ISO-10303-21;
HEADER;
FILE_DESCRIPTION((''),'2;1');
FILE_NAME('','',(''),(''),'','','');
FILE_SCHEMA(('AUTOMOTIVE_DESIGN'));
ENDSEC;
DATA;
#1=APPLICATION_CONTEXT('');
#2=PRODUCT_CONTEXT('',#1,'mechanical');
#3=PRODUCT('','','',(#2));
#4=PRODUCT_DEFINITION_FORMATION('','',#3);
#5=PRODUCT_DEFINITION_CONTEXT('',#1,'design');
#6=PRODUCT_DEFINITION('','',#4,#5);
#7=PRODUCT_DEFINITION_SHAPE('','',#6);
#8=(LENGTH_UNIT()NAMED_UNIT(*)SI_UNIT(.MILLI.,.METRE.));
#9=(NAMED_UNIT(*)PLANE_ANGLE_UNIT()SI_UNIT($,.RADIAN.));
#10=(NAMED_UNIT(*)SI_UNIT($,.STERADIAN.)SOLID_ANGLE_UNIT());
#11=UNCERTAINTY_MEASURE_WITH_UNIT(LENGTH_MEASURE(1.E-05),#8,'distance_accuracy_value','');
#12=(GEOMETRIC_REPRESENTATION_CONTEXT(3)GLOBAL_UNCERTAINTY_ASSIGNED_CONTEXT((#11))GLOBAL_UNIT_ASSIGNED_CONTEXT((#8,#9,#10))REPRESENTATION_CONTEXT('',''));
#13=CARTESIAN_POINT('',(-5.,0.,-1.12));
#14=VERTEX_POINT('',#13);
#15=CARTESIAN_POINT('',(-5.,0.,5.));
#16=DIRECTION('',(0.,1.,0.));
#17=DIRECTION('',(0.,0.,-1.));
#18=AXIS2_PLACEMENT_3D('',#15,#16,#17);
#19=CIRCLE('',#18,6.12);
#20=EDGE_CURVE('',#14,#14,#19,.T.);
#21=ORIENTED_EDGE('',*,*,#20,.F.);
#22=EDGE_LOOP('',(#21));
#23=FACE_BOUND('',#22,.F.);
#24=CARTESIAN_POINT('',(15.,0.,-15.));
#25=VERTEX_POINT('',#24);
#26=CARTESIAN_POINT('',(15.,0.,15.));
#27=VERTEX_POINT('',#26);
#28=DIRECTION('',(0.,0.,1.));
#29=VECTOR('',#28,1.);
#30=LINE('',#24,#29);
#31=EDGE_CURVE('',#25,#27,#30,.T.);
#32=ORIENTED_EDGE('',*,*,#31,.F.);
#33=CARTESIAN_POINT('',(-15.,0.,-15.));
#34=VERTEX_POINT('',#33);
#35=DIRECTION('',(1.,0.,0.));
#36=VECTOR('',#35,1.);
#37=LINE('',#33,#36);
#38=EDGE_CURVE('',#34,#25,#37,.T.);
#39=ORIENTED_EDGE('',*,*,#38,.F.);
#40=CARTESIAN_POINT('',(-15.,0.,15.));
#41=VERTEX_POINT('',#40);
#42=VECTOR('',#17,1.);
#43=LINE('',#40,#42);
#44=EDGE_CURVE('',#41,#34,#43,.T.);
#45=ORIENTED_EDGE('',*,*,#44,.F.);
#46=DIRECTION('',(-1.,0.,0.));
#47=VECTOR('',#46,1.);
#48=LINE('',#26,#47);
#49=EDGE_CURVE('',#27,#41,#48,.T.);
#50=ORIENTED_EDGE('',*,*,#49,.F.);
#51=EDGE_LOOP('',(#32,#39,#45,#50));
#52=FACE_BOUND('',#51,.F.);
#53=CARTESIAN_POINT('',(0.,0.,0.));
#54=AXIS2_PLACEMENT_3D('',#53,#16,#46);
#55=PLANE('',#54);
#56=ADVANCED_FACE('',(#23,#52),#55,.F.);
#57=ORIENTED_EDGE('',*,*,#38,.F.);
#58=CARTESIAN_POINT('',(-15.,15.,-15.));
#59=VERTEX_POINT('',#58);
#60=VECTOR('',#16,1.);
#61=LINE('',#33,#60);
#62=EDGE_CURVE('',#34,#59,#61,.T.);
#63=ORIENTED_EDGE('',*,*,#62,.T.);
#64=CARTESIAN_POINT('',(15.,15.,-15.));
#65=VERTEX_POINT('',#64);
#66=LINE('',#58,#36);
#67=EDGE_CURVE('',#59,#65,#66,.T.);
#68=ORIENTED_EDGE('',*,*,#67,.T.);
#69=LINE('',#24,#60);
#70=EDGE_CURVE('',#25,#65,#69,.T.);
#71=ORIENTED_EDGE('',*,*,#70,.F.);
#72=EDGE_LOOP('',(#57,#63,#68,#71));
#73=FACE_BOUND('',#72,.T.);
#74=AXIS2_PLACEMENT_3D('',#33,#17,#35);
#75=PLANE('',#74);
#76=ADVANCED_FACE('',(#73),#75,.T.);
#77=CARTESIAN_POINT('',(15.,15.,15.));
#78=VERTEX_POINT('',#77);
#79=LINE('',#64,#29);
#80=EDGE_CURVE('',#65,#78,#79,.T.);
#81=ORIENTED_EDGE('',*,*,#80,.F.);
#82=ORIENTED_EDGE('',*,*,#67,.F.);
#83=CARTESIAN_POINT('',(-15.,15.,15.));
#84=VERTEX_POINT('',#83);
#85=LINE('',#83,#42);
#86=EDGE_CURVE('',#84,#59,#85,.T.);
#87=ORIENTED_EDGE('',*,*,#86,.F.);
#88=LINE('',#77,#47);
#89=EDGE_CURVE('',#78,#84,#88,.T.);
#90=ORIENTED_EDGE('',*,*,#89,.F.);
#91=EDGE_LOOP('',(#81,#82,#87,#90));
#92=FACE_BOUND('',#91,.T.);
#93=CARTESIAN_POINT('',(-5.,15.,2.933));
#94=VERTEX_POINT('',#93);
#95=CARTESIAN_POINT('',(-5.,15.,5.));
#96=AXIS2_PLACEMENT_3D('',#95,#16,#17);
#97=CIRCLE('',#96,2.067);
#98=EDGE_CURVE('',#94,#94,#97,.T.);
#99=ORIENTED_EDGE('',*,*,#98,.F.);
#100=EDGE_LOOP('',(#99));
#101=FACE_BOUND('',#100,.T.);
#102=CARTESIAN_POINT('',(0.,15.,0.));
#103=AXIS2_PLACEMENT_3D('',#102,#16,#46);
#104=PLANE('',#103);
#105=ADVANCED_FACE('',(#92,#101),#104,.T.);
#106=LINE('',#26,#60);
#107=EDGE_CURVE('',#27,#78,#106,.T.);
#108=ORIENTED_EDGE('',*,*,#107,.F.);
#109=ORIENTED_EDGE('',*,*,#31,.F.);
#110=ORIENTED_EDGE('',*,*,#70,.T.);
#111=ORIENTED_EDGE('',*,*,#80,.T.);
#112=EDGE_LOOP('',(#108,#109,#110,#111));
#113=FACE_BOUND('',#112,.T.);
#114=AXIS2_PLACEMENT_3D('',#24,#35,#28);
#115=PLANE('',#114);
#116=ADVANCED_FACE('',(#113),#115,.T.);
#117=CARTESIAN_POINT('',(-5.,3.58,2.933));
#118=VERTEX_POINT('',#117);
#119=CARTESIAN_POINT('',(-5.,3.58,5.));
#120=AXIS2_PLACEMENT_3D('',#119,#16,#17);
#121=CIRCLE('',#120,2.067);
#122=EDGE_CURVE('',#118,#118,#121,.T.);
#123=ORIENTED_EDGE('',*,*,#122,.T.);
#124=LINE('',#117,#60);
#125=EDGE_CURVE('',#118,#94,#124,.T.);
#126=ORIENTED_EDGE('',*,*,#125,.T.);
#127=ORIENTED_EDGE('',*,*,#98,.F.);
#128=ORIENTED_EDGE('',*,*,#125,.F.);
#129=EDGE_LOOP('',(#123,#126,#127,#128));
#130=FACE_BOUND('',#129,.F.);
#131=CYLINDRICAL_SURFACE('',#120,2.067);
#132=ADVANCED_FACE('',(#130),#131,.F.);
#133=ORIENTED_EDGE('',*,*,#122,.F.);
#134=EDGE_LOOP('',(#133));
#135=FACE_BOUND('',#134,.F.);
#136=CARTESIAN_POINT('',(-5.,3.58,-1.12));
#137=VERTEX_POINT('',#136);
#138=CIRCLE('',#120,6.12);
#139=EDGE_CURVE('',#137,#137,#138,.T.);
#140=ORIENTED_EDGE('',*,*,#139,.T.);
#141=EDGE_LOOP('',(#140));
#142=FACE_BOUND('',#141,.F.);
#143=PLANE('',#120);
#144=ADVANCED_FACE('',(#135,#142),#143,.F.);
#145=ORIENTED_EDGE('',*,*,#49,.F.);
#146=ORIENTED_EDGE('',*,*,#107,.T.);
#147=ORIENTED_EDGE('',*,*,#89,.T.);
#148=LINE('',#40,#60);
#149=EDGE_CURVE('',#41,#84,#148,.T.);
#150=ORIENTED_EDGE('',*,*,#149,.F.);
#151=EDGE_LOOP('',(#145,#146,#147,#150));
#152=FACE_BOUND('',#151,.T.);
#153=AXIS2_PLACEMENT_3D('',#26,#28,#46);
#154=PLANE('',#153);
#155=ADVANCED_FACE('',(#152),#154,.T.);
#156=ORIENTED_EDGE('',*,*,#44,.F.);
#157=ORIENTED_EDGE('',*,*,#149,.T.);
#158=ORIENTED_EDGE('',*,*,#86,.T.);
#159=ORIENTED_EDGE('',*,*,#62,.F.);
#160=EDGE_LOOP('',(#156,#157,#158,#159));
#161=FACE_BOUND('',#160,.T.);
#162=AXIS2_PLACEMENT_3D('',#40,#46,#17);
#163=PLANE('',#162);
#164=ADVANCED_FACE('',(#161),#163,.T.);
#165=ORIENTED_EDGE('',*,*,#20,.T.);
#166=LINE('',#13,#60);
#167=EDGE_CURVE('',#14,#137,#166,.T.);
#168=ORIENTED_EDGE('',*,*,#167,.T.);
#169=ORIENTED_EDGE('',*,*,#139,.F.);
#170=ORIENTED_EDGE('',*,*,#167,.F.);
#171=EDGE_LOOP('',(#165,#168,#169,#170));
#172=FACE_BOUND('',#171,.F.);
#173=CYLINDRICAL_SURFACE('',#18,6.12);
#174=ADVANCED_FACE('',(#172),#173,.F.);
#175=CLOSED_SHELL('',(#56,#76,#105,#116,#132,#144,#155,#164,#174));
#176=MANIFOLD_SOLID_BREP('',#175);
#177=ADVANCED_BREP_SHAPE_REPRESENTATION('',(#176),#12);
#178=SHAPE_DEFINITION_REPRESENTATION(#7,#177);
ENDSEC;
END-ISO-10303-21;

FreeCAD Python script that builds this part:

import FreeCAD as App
import Part
import Sketcher
Q = App.Units.Quantity

doc = App.newDocument("Part")
params = doc.addObject("Spreadsheet::Sheet", "Params")
for row, (alias, value) in enumerate([
    ("sketch1_width", "30 mm"),
    ("pad1_length", "15 mm"),
    ("hole_diameter", "4.134 mm"),
    ("hole_cbore_diameter", "12.24 mm"),
    ("hole_cbore_depth", "3.58 mm"),
], start=1):
    params.set(f"A{row}", alias)
    params.set(f"B{row}", "=" + value)
    params.setAlias(f"B{row}", alias)

body = doc.addObject("PartDesign::Body", "Body")

# Sketch on XZ plane
sketch1 = doc.addObject("Sketcher::SketchObject", "Sketch")
body.addObject(sketch1)
sketch1.AttachmentSupport = (doc.XZ_Plane, [""])
sketch1.MapMode = "FlatFace"
sketch1.addGeometry(Part.LineSegment(App.Vector(15, -15, 0), App.Vector(-15, -15, 0)), False)
sketch1.addGeometry(Part.LineSegment(App.Vector(-15, -15, 0), App.Vector(-15, 15, 0)), False)
sketch1.addGeometry(Part.LineSegment(App.Vector(-15, 15, 0), App.Vector(15, 15, 0)), False)
sketch1.addGeometry(Part.LineSegment(App.Vector(15, 15, 0), App.Vector(15, -15, 0)), False)
sketch1.addConstraint(Sketcher.Constraint("Coincident", 0, 2, 1, 1))
sketch1.addConstraint(Sketcher.Constraint("Coincident", 1, 2, 2, 1))
sketch1.addConstraint(Sketcher.Constraint("Coincident", 2, 2, 3, 1))
sketch1.addConstraint(Sketcher.Constraint("Coincident", 3, 2, 0, 1))
sketch1.addConstraint(Sketcher.Constraint("Horizontal", 0))
sketch1.addConstraint(Sketcher.Constraint("Vertical", 1))
sketch1.addConstraint(Sketcher.Constraint("Horizontal", 2))
sketch1.addConstraint(Sketcher.Constraint("Vertical", 3))
sketch1.addConstraint(Sketcher.Constraint("Symmetric", 0, 2, 2, 2, -1, 1))
sketch1.addConstraint(Sketcher.Constraint("Equal", 2, 1))
sketch1.addConstraint(Sketcher.Constraint("DistanceX", 0, 2, 0, 1, Q("30 mm")))
sketch1.setExpression("Constraints[10]", "Params.sketch1_width")
pad1 = doc.addObject("PartDesign::Pad", "Pad")
body.addObject(pad1)
pad1.Profile = sketch1
pad1.setExpression("Length", "Params.pad1_length")
pad1.Reversed = True

# Sketch on XZ plane
sketch2 = doc.addObject("Sketcher::SketchObject", "Sketch001")
body.addObject(sketch2)
sketch2.AttachmentSupport = (doc.XZ_Plane, [""])
sketch2.MapMode = "FlatFace"
sketch2.addGeometry(Part.Circle(App.Vector(-5, 5, 0), App.Vector(0, 0, 1), 2.1), False)
sketch2.addConstraint(Sketcher.Constraint("Diameter", 0, Q("4.134 mm")))
sketch2.addConstraint(Sketcher.Constraint("DistanceX", 0, 3, -1, 1, Q("5 mm")))
sketch2.addConstraint(Sketcher.Constraint("DistanceY", -1, 1, 0, 3, Q("5 mm")))
doc.recompute()
hole = doc.addObject("PartDesign::Hole", "Hole")
body.addObject(hole)
hole.Profile = sketch2
hole.ThreadType = "None"
hole.setExpression("Diameter", "Params.hole_diameter")
hole.DepthType = "ThroughAll"
hole.HoleCutType = "Counterbore"
hole.setExpression("HoleCutDiameter", "Params.hole_cbore_diameter")
hole.setExpression("HoleCutDepth", "Params.hole_cbore_depth")

doc.recompute()
